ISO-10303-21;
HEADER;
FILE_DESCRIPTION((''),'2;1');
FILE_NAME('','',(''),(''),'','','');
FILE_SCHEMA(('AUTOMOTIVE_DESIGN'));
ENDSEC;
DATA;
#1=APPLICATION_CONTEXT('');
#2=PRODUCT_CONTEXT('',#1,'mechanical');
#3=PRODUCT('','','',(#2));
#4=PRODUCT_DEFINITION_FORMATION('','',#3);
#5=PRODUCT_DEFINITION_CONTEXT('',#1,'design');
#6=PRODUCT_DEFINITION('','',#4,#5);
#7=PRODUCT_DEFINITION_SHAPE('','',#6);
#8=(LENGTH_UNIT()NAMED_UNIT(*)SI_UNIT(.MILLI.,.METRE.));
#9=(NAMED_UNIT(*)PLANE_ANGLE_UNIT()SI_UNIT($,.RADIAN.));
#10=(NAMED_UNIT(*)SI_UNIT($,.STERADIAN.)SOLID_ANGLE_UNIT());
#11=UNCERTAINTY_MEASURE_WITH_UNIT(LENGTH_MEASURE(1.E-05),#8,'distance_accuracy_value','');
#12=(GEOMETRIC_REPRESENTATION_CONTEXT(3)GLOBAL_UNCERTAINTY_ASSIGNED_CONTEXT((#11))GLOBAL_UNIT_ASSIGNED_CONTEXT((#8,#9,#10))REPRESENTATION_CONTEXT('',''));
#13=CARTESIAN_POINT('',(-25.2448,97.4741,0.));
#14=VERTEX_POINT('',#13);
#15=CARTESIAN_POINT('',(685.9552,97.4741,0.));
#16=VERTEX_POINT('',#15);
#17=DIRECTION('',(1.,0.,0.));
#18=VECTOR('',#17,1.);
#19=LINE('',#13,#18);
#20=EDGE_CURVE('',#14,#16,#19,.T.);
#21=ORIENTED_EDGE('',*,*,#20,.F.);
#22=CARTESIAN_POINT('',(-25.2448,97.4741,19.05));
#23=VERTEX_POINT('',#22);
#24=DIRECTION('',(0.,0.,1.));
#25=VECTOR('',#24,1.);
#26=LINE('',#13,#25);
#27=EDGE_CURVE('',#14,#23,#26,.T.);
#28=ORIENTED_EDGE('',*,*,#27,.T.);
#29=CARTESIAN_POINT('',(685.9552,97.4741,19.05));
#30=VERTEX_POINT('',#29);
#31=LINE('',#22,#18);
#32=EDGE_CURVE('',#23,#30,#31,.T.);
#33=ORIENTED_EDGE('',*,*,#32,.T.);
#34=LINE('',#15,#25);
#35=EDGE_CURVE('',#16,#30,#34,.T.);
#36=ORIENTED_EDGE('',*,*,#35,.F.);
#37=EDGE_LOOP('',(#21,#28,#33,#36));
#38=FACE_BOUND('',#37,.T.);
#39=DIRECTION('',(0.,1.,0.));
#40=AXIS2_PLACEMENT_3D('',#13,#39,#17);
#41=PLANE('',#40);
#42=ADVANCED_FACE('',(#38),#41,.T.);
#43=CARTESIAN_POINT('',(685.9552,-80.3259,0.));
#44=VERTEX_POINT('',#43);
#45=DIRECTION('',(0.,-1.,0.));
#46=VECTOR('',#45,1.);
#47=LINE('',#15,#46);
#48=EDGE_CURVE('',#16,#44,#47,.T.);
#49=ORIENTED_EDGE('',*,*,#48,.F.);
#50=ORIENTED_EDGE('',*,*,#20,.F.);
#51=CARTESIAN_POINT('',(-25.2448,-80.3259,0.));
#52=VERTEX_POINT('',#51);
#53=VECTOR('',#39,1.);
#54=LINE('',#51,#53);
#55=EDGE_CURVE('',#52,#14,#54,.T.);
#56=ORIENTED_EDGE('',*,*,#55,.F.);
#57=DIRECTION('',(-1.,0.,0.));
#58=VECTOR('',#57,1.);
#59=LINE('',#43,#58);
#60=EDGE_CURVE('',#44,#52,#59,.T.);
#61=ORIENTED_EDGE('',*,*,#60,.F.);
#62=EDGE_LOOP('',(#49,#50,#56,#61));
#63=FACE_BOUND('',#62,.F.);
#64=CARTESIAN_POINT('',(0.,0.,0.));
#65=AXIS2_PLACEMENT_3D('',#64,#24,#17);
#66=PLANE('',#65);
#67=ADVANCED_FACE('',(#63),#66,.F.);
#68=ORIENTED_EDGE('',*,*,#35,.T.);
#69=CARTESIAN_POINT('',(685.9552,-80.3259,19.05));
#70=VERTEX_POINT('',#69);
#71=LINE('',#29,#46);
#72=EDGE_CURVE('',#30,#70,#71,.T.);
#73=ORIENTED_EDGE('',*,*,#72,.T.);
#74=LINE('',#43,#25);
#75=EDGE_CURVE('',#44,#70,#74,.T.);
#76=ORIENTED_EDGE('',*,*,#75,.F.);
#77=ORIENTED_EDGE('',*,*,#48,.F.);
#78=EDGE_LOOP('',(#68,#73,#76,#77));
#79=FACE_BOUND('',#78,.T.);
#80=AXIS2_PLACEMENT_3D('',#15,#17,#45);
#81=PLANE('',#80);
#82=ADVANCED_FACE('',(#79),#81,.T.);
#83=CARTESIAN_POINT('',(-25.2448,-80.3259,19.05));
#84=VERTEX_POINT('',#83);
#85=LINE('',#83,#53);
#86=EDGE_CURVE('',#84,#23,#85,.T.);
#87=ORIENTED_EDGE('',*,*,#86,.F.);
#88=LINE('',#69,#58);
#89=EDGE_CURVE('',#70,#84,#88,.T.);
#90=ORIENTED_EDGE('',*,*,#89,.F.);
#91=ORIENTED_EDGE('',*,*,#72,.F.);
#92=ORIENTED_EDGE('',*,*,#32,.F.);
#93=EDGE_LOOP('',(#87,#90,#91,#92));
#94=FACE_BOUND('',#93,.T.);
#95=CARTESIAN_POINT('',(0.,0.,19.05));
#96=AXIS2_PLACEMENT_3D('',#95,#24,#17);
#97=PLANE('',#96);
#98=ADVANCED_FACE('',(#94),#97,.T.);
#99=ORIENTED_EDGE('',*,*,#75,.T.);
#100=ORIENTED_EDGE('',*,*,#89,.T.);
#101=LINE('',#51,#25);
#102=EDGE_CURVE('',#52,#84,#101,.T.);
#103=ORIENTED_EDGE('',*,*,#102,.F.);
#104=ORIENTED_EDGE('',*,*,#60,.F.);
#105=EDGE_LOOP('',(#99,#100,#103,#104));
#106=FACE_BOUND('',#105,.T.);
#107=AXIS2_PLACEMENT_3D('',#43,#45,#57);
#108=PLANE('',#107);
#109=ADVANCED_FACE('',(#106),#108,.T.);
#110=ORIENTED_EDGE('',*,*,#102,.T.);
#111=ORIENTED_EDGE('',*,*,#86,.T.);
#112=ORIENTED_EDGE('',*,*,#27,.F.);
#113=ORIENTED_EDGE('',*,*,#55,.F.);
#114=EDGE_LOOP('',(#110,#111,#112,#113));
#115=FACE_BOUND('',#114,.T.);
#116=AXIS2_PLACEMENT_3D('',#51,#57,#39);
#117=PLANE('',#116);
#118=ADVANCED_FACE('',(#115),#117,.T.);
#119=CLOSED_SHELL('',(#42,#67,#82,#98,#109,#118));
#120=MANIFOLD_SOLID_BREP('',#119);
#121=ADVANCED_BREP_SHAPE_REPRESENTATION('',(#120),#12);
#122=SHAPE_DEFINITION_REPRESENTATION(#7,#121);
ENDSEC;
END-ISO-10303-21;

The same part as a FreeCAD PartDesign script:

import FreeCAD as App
import Part
import Sketcher

V = App.Vector
Q = App.Units.Quantity


def add_polygon(sketch, points):
    """Adds a closed chain of lines whose ends are joined by coincident constraints."""
    first, n = sketch.GeometryCount, len(points)
    for a, b in zip(points, points[1:] + points[:1]):
        sketch.addGeometry(Part.LineSegment(App.Vector(*a, 0), App.Vector(*b, 0)), False)
    for i in range(n):
        sketch.addConstraint(Sketcher.Constraint("Coincident", first + i, 2, first + (i + 1) % n, 1))

doc = App.newDocument("Part")
body = doc.addObject("PartDesign::Body", "Body")

sketch1 = doc.addObject("Sketcher::SketchObject", "Sketch")
body.addObject(sketch1)
sketch1.AttachmentSupport = (doc.XY_Plane, [""])
sketch1.MapMode = "FlatFace"
add_polygon(sketch1, [(686, 97), (-25, 97), (-25, -80), (686, -80)])
sketch1.addConstraint([
    Sketcher.Constraint("Horizontal", 0),
    Sketcher.Constraint("Vertical", 1),
    Sketcher.Constraint("Horizontal", 2),
    Sketcher.Constraint("Vertical", 3),
    Sketcher.Constraint("DistanceX", 0, 2, 0, 1, Q("28 in")),
    Sketcher.Constraint("DistanceY", 1, 2, 1, 1, Q("7 in")),
    Sketcher.Constraint("DistanceX", 0, 2, -1, 1, Q("0.9939 in")),
    Sketcher.Constraint("DistanceY", -1, 1, 0, 2, Q("97.474 mm")),
])
pad1 = doc.addObject("PartDesign::Pad", "Pad")
body.addObject(pad1)
pad1.Profile = sketch1
pad1.Length = Q("0.75 in")

doc.recompute()
